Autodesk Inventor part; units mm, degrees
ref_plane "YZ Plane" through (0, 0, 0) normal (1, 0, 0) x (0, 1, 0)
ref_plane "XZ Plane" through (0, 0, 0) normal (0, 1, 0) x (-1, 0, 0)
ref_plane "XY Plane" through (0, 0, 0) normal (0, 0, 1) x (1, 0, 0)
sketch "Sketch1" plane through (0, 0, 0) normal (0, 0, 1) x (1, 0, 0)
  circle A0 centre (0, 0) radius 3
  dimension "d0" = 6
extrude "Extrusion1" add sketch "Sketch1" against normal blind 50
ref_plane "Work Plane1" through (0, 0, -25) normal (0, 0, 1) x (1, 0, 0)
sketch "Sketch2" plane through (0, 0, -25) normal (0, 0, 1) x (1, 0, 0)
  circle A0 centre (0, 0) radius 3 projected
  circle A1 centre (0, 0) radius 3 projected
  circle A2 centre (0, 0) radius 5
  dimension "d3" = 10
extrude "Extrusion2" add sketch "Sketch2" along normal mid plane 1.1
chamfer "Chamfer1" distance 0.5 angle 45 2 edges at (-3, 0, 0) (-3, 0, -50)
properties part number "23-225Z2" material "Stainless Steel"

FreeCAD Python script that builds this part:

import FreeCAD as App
import Part
import Sketcher
from FreeCAD import Vector


def edges_at(feature, points):
    """Names of the edges that pass closest to the given points."""
    edges = feature.Shape.Edges
    near = lambda p: min(range(len(edges)), key=lambda i: edges[i].distToShape(Part.Vertex(*p))[0])
    return sorted({f"Edge{near(p) + 1}" for p in points})

doc = App.newDocument("Part")
params = doc.addObject("Spreadsheet::Sheet", "Params")
for row, (alias, value) in enumerate([
    ("sketch1_diameter", "6 mm"),
    ("pad1_length", "50 mm"),
    ("sketch2_diameter", "10 mm"),
    ("sketch2_diameter2", "6 mm"),
    ("pad2_length", "1.1 mm"),
    ("chamfer_size", "0.5 mm"),
], start=1):
    params.set(f"A{row}", alias)
    params.set(f"B{row}", "=" + value)
    params.setAlias(f"B{row}", alias)

body = doc.addObject("PartDesign::Body", "Body")

sketch1 = body.newObject("Sketcher::SketchObject", "Sketch")
sketch1.AttachmentSupport = (doc.getObject("XY_Plane"), [""])
sketch1.MapMode = "FlatFace"
sketch1.addGeometry(Part.Circle(Vector(0, 0, 0), Vector(0, 0, 1), 3), False)
sketch1.addConstraint([
    Sketcher.Constraint("Coincident", 0, 3, -1, 1),
    Sketcher.Constraint("Diameter", 0, 6.0),
])
sketch1.setExpression("Constraints[1]", "Params.sketch1_diameter")
pad1 = body.newObject("PartDesign::Pad", "Pad")
pad1.Profile = sketch1
pad1.setExpression("Length", "Params.pad1_length")
pad1.Reversed = True

sketch2 = body.newObject("Sketcher::SketchObject", "Sketch001")
sketch2.AttachmentSupport = (doc.getObject("XY_Plane"), [""])
sketch2.MapMode = "FlatFace"
sketch2.AttachmentOffset = App.Placement(Vector(0, 0, -25), App.Rotation())
sketch2.addGeometry([
    Part.Circle(Vector(0, 0, 0), Vector(0, 0, 1), 5),
    Part.Circle(Vector(0, 0, 0), Vector(0, 0, 1), 3),
], False)
sketch2.addConstraint([
    Sketcher.Constraint("Coincident", 0, 3, -1, 1),
    Sketcher.Constraint("Coincident", 1, 3, -1, 1),
    Sketcher.Constraint("Diameter", 0, 10.0),
    Sketcher.Constraint("Diameter", 1, 6.0),
])
sketch2.setExpression("Constraints[2]", "Params.sketch2_diameter")
sketch2.setExpression("Constraints[3]", "Params.sketch2_diameter2")
pad2 = body.newObject("PartDesign::Pad", "Pad001")
pad2.Profile = sketch2
pad2.setExpression("Length", "Params.pad2_length")
pad2.Midplane = True
doc.recompute()

chamfer = body.newObject("PartDesign::Chamfer", "Chamfer")
chamfer.Base = (pad2, edges_at(pad2, [(-3, 0, 0), (-3, 0, -50)]))
chamfer.setExpression("Size", "Params.chamfer_size")

doc.recompute()
